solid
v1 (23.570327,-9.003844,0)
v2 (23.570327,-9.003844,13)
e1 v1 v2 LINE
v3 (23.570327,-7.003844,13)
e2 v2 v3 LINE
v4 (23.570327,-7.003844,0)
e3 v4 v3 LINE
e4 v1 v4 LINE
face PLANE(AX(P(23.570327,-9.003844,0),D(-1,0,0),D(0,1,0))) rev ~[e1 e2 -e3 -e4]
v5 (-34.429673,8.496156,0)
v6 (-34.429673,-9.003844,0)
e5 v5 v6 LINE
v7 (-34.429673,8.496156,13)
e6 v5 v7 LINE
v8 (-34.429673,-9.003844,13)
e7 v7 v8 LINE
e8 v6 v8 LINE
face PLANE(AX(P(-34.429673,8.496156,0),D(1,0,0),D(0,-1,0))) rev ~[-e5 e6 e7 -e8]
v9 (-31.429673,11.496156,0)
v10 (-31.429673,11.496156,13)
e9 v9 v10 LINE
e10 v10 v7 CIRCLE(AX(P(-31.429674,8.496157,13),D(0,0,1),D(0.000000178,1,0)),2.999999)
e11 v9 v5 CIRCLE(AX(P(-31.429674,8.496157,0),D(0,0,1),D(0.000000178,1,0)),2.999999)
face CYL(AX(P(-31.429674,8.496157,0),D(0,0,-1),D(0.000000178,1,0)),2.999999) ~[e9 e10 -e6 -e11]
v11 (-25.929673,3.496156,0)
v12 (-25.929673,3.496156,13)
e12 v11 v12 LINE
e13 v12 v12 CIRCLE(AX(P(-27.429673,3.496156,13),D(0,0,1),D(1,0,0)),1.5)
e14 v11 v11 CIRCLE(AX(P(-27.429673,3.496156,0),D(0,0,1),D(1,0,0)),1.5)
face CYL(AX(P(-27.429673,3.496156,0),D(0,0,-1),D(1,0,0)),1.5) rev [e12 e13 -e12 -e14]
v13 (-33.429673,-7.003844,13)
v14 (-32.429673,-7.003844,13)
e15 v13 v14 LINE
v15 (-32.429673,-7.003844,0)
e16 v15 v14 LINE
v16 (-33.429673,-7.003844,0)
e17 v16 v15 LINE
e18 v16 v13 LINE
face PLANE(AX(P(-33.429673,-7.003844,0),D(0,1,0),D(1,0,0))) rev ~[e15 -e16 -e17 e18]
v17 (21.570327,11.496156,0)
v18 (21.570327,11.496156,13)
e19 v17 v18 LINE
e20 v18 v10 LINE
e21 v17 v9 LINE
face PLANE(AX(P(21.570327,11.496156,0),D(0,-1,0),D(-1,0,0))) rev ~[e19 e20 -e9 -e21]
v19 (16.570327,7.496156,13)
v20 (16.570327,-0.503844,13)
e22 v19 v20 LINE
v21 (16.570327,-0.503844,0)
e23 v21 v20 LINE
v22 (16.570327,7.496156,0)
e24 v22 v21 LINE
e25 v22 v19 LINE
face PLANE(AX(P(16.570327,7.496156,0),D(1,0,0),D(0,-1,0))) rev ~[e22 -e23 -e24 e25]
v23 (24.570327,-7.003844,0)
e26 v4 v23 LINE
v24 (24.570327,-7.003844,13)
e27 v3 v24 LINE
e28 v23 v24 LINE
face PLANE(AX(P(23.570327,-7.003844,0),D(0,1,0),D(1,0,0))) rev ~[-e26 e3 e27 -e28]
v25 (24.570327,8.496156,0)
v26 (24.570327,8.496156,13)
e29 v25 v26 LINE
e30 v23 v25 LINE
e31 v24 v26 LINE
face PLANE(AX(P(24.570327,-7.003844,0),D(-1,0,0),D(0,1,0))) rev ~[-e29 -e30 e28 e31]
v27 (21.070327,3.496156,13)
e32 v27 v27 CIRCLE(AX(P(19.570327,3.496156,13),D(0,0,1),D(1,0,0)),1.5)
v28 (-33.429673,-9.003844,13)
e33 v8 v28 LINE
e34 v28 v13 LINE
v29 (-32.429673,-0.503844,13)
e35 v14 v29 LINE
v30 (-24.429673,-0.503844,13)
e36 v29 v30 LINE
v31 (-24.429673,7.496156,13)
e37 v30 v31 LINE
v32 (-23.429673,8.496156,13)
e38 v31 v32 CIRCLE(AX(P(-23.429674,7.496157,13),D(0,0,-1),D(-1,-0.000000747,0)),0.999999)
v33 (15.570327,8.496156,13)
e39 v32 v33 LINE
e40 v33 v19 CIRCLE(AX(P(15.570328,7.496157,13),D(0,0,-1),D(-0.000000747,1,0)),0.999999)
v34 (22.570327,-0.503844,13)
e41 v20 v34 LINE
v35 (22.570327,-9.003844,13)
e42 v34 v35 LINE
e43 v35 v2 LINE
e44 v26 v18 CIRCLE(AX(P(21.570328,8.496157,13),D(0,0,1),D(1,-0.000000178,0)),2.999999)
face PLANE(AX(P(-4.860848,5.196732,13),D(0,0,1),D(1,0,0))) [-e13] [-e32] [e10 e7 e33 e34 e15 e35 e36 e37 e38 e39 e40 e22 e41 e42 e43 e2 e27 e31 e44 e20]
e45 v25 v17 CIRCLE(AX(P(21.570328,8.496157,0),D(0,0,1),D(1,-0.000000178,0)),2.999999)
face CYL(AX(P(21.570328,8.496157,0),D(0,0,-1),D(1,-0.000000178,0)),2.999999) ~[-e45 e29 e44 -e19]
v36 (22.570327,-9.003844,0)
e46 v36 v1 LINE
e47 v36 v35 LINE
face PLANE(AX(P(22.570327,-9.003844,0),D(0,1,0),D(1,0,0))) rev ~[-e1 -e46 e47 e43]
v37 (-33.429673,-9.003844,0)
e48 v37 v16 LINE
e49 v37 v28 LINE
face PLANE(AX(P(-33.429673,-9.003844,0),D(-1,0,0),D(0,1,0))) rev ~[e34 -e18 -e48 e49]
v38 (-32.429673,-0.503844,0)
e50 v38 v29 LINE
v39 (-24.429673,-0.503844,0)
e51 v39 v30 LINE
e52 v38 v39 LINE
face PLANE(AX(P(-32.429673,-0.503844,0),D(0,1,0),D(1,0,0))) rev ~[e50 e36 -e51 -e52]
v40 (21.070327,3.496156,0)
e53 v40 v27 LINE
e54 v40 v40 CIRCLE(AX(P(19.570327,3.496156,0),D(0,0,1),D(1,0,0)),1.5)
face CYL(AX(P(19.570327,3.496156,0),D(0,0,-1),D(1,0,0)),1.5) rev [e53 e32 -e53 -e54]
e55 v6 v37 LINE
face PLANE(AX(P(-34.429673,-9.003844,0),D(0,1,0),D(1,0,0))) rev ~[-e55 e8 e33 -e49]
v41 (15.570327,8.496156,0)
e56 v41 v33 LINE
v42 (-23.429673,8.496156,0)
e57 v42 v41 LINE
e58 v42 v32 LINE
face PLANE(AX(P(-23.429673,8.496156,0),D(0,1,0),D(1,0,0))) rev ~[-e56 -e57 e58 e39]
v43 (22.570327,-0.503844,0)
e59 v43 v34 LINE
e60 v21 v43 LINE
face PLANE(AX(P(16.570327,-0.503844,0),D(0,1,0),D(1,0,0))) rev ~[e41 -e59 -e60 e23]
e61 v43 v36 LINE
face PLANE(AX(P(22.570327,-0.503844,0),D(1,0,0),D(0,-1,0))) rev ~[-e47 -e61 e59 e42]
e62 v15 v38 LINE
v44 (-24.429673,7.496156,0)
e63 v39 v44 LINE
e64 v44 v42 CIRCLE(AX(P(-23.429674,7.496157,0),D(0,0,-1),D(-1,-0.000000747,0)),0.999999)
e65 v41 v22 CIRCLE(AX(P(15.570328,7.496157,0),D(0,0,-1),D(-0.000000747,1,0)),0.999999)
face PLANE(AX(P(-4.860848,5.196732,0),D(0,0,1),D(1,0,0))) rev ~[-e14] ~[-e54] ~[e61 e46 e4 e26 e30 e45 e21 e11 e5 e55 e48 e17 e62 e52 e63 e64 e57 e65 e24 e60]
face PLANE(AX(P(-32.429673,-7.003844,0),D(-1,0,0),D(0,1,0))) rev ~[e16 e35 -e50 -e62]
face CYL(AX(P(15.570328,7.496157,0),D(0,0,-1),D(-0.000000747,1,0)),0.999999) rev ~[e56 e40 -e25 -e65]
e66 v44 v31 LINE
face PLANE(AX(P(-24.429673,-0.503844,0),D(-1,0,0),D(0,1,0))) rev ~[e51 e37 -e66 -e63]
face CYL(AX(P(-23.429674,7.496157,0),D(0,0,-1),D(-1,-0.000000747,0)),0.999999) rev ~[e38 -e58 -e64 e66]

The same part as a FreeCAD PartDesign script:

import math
import FreeCAD as App
import Part
import Sketcher
from FreeCAD import Vector

doc = App.newDocument("Part")
body = doc.addObject("PartDesign::Body", "Body")

sketch1 = body.newObject("Sketcher::SketchObject", "Sketch")
sketch1.AttachmentSupport = (doc.getObject("XY_Plane"), [""])
sketch1.MapMode = "FlatFace"
sketch1.addGeometry([
    Part.ArcOfCircle(Part.Circle(Vector(-23.4, 7.5, 0), Vector(0, 0, 1), 1), math.radians(90), math.radians(180)),
    Part.LineSegment(Vector(-23.4, 8.5, 0), Vector(15.6, 8.5, 0)),
    Part.ArcOfCircle(Part.Circle(Vector(15.6, 7.5, 0), Vector(0, 0, 1), 1), math.radians(0), math.radians(90)),
    Part.LineSegment(Vector(16.6, 7.5, 0), Vector(16.6, -0.5, 0)),
    Part.LineSegment(Vector(16.6, -0.5, 0), Vector(22.6, -0.5, 0)),
    Part.LineSegment(Vector(22.6, -0.5, 0), Vector(22.6, -9, 0)),
    Part.LineSegment(Vector(22.6, -9, 0), Vector(23.6, -9, 0)),
    Part.LineSegment(Vector(23.6, -9, 0), Vector(23.6, -7, 0)),
    Part.LineSegment(Vector(23.6, -7, 0), Vector(24.6, -7, 0)),
    Part.LineSegment(Vector(24.6, -7, 0), Vector(24.6, 8.5, 0)),
    Part.ArcOfCircle(Part.Circle(Vector(21.6, 8.5, 0), Vector(0, 0, 1), 3), math.radians(0), math.radians(90)),
    Part.LineSegment(Vector(21.6, 11.5, 0), Vector(-31.4, 11.5, 0)),
    Part.ArcOfCircle(Part.Circle(Vector(-31.4, 8.5, 0), Vector(0, 0, 1), 3), math.radians(90), math.radians(180)),
    Part.LineSegment(Vector(-34.4, 8.5, 0), Vector(-34.4, -9, 0)),
    Part.LineSegment(Vector(-34.4, -9, 0), Vector(-33.4, -9, 0)),
    Part.LineSegment(Vector(-33.4, -9, 0), Vector(-33.4, -7, 0)),
    Part.LineSegment(Vector(-33.4, -7, 0), Vector(-32.4, -7, 0)),
    Part.LineSegment(Vector(-32.4, -7, 0), Vector(-32.4, -0.5, 0)),
    Part.LineSegment(Vector(-32.4, -0.5, 0), Vector(-24.4, -0.5, 0)),
    Part.LineSegment(Vector(-24.4, -0.5, 0), Vector(-24.4, 7.5, 0)),
    Part.Circle(Vector(-27.4, 3.5, 0), Vector(0, 0, 1), 1.5),
    Part.Circle(Vector(19.6, 3.5, 0), Vector(0, 0, 1), 1.5),
], False)
sketch1.addConstraint([
    Sketcher.Constraint("Tangent", 0, 1, 1, 1),
    Sketcher.Constraint("Tangent", 1, 2, 2, 2),
    Sketcher.Constraint("Tangent", 2, 1, 3, 1),
    Sketcher.Constraint("Coincident", 3, 2, 4, 1),
    Sketcher.Constraint("Coincident", 4, 2, 5, 1),
    Sketcher.Constraint("Coincident", 5, 2, 6, 1),
    Sketcher.Constraint("Coincident", 6, 2, 7, 1),
    Sketcher.Constraint("Coincident", 7, 2, 8, 1),
    Sketcher.Constraint("Coincident", 8, 2, 9, 1),
    Sketcher.Constraint("Tangent", 9, 2, 10, 1),
    Sketcher.Constraint("Tangent", 10, 2, 11, 1),
    Sketcher.Constraint("Tangent", 11, 2, 12, 1),
    Sketcher.Constraint("Tangent", 12, 2, 13, 1),
    Sketcher.Constraint("Coincident", 13, 2, 14, 1),
    Sketcher.Constraint("Coincident", 14, 2, 15, 1),
    Sketcher.Constraint("Coincident", 15, 2, 16, 1),
    Sketcher.Constraint("Coincident", 16, 2, 17, 1),
    Sketcher.Constraint("Coincident", 17, 2, 18, 1),
    Sketcher.Constraint("Coincident", 18, 2, 19, 1),
    Sketcher.Constraint("Tangent", 19, 2, 0, 2),
    Sketcher.Constraint("Horizontal", 1),
    Sketcher.Constraint("Vertical", 3),
    Sketcher.Constraint("Horizontal", 4),
    Sketcher.Constraint("Vertical", 5),
    Sketcher.Constraint("Horizontal", 6),
    Sketcher.Constraint("Vertical", 7),
    Sketcher.Constraint("Horizontal", 8),
    Sketcher.Constraint("Vertical", 9),
    Sketcher.Constraint("Horizontal", 11),
    Sketcher.Constraint("Vertical", 13),
    Sketcher.Constraint("Horizontal", 14),
    Sketcher.Constraint("Vertical", 15),
    Sketcher.Constraint("Horizontal", 16),
    Sketcher.Constraint("Vertical", 17),
    Sketcher.Constraint("Horizontal", 18),
    Sketcher.Constraint("Vertical", 19),
    Sketcher.Constraint("Equal", 0, 2),
    Sketcher.Constraint("Equal", 10, 12),
    Sketcher.Constraint("Equal", 20, 21),
    Sketcher.Constraint("Horizontal", 20, 3, 21, 3),
    Sketcher.Constraint("Horizontal", 12, 3, 0, 1),
    Sketcher.Constraint("Horizontal", 6, 2, 13, 2),
    Sketcher.Constraint("Horizontal", 8, 2, 15, 2),
    Sketcher.Constraint("Horizontal", 4, 2, 17, 2),
    Sketcher.Constraint("Equal", 6, 8),
    Sketcher.Constraint("Equal", 8, 14),
    Sketcher.Constraint("Equal", 14, 16),
    Sketcher.Constraint("Equal", 18, 3),
    Sketcher.Constraint("Diameter", 20, 3.0),
    Sketcher.Constraint("Radius", 0, 0.999999),
    Sketcher.Constraint("Radius", 10, 2.999999),
    Sketcher.Constraint("DistanceX", 1, 1, 1, 2, 39.0),
    Sketcher.Constraint("DistanceX", 4, 1, 4, 2, 6.0),
    Sketcher.Constraint("DistanceX", 6, 1, 6, 2, 1.0),
    Sketcher.Constraint("DistanceX", 11, 2, 11, 1, 53.0),
    Sketcher.Constraint("DistanceY", 7, 1, 7, 2, 2.0),
    Sketcher.Constraint("DistanceY", 5, 2, 5, 1, 8.5),
    Sketcher.Constraint("DistanceX", 20, 3, 0, 3, 3.999999),
    Sketcher.Constraint("DistanceY", 20, 3, 0, 3, 4.000001),
    Sketcher.Constraint("DistanceX", 21, 3, 10, 3, 2.000001),
    Sketcher.Constraint("DistanceX", 0, 3, -1, 1, 23.429674),
    Sketcher.Constraint("DistanceY", -1, 1, 0, 3, 7.496157),
])
pad1 = body.newObject("PartDesign::Pad", "Pad")
pad1.Profile = sketch1
pad1.Length = 13

doc.recompute()
